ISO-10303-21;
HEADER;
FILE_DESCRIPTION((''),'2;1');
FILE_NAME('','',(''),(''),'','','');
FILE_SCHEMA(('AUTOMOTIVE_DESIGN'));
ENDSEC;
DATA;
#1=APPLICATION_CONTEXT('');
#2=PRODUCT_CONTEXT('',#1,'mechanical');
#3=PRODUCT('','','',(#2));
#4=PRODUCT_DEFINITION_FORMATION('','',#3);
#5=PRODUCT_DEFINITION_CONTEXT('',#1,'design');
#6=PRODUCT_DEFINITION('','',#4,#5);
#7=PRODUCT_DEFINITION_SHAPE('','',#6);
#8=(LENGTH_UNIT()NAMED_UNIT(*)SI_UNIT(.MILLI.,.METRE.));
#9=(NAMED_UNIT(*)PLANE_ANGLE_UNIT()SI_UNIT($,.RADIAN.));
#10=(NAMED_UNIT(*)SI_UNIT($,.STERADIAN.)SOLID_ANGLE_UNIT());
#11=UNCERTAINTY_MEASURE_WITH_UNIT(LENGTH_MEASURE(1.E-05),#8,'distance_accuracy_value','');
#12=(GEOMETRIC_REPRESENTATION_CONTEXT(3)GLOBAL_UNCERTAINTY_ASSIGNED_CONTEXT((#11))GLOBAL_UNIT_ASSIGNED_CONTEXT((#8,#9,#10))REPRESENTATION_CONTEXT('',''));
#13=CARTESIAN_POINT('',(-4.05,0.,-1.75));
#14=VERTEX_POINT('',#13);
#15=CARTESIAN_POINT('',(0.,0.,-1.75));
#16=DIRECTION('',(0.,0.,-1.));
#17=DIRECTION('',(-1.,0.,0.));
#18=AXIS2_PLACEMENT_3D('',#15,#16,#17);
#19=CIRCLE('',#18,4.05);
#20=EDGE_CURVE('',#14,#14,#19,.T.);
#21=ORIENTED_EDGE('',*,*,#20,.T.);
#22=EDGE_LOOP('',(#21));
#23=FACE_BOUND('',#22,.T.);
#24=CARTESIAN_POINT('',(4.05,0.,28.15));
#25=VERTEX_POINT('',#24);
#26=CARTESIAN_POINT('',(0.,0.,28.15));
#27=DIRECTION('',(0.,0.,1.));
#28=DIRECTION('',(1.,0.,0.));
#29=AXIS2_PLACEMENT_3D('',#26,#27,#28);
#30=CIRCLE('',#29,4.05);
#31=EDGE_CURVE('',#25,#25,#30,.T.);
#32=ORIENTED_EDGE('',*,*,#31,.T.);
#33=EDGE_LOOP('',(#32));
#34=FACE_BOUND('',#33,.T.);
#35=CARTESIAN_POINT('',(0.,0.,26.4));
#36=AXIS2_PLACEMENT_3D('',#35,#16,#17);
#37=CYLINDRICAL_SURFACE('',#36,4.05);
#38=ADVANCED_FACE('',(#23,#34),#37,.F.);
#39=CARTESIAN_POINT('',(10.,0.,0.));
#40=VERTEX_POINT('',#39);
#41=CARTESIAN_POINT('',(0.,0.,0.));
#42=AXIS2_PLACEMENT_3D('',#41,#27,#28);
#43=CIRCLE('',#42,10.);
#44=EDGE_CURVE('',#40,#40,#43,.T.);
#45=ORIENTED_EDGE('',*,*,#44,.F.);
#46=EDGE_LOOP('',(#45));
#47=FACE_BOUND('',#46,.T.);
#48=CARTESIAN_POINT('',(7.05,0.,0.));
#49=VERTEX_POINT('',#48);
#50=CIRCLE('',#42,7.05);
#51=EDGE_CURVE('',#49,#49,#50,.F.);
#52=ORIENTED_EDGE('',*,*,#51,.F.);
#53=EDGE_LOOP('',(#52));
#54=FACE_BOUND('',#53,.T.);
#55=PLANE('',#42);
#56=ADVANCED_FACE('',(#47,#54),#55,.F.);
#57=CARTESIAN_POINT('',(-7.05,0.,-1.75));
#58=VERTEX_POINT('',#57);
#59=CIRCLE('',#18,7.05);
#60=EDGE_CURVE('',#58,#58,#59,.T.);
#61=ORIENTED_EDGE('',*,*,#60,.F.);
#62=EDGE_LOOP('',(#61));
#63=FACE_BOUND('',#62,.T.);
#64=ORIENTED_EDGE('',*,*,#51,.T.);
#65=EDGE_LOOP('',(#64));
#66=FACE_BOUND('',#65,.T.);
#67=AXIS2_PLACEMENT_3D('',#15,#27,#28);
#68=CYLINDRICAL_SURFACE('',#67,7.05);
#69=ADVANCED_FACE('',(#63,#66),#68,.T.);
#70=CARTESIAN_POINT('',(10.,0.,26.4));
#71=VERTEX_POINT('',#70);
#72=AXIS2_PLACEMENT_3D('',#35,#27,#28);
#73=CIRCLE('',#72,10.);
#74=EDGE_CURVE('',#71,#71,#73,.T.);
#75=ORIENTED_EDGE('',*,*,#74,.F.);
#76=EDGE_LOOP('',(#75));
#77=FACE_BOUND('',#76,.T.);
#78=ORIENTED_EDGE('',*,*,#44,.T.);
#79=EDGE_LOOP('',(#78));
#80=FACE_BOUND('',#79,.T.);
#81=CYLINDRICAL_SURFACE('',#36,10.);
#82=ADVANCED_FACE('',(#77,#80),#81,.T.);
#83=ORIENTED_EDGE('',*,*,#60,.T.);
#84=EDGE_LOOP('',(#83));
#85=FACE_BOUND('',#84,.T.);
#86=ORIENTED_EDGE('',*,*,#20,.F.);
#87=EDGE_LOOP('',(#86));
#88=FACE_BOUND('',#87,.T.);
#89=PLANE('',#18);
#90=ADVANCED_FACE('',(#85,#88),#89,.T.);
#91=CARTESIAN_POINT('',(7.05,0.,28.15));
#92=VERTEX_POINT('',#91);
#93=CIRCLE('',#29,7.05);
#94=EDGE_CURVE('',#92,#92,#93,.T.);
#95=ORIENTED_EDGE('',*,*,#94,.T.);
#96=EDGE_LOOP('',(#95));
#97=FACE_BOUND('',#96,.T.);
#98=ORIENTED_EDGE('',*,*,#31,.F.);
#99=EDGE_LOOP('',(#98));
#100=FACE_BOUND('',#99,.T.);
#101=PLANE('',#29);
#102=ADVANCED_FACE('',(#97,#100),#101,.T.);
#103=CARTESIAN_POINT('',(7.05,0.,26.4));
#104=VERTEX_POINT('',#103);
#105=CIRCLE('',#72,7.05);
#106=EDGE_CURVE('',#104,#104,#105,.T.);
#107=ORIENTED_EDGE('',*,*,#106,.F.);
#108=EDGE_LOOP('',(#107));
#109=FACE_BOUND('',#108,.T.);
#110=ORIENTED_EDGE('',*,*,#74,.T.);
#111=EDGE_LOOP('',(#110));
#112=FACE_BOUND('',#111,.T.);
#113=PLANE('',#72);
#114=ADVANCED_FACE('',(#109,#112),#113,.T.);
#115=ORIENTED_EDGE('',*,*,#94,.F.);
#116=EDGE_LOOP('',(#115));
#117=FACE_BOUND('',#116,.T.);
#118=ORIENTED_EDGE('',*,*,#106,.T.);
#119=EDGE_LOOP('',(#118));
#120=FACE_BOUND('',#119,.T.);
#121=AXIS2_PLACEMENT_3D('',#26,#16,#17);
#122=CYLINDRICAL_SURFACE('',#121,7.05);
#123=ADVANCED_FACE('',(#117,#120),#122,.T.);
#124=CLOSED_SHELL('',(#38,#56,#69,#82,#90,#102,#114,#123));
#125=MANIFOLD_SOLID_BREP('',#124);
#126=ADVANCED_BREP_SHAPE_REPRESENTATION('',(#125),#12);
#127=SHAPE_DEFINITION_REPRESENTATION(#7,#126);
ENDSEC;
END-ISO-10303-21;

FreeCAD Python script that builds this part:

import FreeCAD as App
import Part
import Sketcher

V = App.Vector

doc = App.newDocument("Part")
body = doc.addObject("PartDesign::Body", "Body")

# Sketch on XY plane
sketch1 = body.newObject("Sketcher::SketchObject", "Sketch")
sketch1.AttachmentSupport = (doc.getObject("XY_Plane"), [""])
sketch1.MapMode = "FlatFace"
sketch1.addGeometry([
    Part.Circle(V(0, 0, 0), V(0, 0, 1), 10),
    Part.Circle(V(0, 0, 0), V(0, 0, 1), 4),
], False)
sketch1.addConstraint([
    Sketcher.Constraint("Coincident", 0, 3, -1, 1),
    Sketcher.Constraint("Coincident", 1, 3, -1, 1),
    Sketcher.Constraint("Diameter", 0, 20.0),
    Sketcher.Constraint("Diameter", 1, 8.1),
])
pad1 = body.newObject("PartDesign::Pad", "Pad")
pad1.Profile = sketch1
pad1.Length = 26.4

# Sketch on XY plane
sketch2 = body.newObject("Sketcher::SketchObject", "Sketch001")
sketch2.AttachmentSupport = (doc.getObject("XY_Plane"), [""])
sketch2.MapMode = "FlatFace"
sketch2.AttachmentOffset = App.Placement(V(0, 0, 26.4), App.Rotation())
sketch2.addGeometry([
    Part.Circle(V(0, 0, 0), V(0, 0, 1), 7),
    Part.Circle(V(0, 0, 0), V(0, 0, 1), 4),
], False)
sketch2.addConstraint([
    Sketcher.Constraint("Coincident", 0, 3, -1, 1),
    Sketcher.Constraint("Coincident", 1, 3, -1, 1),
    Sketcher.Constraint("Diameter", 0, 14.1),
    Sketcher.Constraint("Diameter", 1, 8.1),
])
pad2 = body.newObject("PartDesign::Pad", "Pad001")
pad2.Profile = sketch2
pad2.Length = 1.75

# Sketch on XY plane
sketch3 = body.newObject("Sketcher::SketchObject", "Sketch002")
sketch3.AttachmentSupport = (doc.getObject("XY_Plane"), [""])
sketch3.MapMode = "FlatFace"
sketch3.addGeometry([
    Part.Circle(V(0, 0, 0), V(0, 0, 1), 7),
    Part.Circle(V(0, 0, 0), V(0, 0, 1), 4),
], False)
sketch3.addConstraint([
    Sketcher.Constraint("Coincident", 0, 3, -1, 1),
    Sketcher.Constraint("Coincident", 1, 3, -1, 1),
    Sketcher.Constraint("Diameter", 0, 14.1),
    Sketcher.Constraint("Diameter", 1, 8.1),
])
pad3 = body.newObject("PartDesign::Pad", "Pad002")
pad3.Profile = sketch3
pad3.Length = 1.75
pad3.Reversed = True

doc.recompute()
